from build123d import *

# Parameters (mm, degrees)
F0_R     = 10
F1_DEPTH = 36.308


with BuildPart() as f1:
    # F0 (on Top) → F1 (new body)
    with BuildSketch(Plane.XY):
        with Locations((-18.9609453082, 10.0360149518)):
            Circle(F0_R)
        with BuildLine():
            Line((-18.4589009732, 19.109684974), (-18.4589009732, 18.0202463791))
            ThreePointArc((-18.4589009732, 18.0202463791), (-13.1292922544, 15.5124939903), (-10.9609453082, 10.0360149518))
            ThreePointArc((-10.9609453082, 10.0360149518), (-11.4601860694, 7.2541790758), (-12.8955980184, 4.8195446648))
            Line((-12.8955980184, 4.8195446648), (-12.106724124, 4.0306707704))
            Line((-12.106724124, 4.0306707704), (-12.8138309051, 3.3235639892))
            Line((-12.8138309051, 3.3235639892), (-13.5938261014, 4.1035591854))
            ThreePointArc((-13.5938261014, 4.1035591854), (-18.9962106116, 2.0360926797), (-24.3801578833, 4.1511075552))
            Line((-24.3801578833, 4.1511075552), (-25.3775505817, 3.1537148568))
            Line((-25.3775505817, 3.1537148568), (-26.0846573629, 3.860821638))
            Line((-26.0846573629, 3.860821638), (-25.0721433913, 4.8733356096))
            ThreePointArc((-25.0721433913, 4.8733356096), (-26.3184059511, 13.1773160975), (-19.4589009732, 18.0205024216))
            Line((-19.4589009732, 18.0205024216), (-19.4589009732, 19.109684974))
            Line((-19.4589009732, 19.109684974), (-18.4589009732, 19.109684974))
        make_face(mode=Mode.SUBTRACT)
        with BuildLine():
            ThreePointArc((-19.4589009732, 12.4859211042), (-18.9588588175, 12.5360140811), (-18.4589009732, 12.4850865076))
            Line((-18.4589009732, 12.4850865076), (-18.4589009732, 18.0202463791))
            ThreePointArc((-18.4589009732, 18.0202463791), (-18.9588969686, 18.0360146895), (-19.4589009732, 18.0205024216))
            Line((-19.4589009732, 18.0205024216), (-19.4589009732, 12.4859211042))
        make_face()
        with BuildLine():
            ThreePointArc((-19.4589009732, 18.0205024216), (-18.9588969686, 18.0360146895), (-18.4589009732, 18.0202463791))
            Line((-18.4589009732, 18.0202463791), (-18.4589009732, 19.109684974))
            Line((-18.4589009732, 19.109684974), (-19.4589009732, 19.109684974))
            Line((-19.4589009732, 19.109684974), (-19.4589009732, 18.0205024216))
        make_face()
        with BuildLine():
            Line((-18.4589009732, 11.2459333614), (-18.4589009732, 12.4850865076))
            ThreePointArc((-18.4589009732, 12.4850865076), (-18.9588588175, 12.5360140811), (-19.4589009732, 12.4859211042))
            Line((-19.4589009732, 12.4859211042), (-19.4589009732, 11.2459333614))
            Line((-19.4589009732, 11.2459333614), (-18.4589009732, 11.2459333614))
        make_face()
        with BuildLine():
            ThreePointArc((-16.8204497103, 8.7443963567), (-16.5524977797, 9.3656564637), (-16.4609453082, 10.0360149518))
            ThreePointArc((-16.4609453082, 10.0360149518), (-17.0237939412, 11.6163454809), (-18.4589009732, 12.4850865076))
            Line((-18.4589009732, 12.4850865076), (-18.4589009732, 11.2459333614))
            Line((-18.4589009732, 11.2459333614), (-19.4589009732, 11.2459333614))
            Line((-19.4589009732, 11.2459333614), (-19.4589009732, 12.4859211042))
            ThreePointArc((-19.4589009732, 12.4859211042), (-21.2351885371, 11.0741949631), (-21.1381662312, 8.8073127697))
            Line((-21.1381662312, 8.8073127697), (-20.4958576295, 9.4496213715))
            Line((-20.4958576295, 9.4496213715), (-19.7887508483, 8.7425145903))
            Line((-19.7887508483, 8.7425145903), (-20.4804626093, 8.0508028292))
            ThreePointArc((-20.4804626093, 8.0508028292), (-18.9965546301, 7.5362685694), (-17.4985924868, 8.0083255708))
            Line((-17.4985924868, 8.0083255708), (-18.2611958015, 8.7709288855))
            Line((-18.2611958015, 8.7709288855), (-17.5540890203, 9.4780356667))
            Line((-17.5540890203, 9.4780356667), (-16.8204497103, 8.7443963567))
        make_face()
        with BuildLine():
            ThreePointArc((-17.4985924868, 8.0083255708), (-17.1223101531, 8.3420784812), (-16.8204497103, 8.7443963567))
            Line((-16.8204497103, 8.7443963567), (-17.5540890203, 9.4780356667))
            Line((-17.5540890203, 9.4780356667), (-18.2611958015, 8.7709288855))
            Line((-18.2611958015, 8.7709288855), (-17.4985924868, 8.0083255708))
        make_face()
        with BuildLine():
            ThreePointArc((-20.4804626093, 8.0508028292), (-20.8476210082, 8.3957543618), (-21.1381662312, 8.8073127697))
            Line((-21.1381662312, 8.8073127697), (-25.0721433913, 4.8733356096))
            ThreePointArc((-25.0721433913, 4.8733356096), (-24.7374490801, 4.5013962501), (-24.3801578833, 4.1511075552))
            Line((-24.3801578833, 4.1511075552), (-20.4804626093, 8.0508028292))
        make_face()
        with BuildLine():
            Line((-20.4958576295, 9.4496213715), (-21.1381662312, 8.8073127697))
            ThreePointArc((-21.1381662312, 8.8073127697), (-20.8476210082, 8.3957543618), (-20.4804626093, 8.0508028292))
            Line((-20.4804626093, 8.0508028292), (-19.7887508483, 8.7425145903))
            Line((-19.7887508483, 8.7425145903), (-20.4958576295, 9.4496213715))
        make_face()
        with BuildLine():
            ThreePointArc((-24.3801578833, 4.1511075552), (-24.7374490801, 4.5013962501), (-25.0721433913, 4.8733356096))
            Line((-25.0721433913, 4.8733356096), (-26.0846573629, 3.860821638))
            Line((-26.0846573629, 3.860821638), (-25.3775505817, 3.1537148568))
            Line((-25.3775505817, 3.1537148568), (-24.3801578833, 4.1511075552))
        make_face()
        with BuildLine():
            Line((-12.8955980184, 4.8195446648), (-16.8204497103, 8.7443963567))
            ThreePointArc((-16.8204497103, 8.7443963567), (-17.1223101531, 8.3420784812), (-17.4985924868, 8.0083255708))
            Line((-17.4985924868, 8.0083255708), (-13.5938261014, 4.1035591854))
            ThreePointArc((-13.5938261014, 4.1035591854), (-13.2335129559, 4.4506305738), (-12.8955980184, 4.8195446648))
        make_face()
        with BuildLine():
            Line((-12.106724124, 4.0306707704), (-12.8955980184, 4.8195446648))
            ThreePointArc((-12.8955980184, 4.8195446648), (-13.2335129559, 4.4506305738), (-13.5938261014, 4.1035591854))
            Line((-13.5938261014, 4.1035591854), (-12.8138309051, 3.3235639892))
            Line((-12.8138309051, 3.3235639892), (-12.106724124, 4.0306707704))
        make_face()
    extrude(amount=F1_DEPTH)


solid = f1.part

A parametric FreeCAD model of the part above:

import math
import FreeCAD as App
import Part
import Sketcher
from FreeCAD import Vector
Q = App.Units.Quantity

doc = App.newDocument("Part")
body = doc.addObject("PartDesign::Body", "Body")

sketch1 = doc.addObject("Sketcher::SketchObject", "Sketch")
body.addObject(sketch1)
sketch1.AttachmentSupport = (doc.XY_Plane, [""])
sketch1.MapMode = "FlatFace"
sketch1.addGeometry(Part.Circle(Vector(-19, 10, 0), Vector(0, 0, 1), 10), False)
sketch1.addGeometry(Part.LineSegment(Vector(-17.5, 8, 0), Vector(-13.6, 4.1, 0)), False)
sketch1.addGeometry(Part.ArcOfCircle(Part.Circle(Vector(-19, 10, 0), Vector(0, 0, 1), 8), math.radians(-133), math.radians(-48)), False)
sketch1.addGeometry(Part.LineSegment(Vector(-24.4, 4.2, 0), Vector(-20.5, 8.1, 0)), False)
sketch1.addGeometry(Part.ArcOfCircle(Part.Circle(Vector(-19, 10, 0), Vector(0, 0, 1), 2.5), math.radians(-127), math.radians(-54)), False)
sketch1.addGeometry(Part.LineSegment(Vector(-21.1, 8.8, 0), Vector(-25.1, 4.9, 0)), False)
sketch1.addGeometry(Part.ArcOfCircle(Part.Circle(Vector(-19, 10, 0), Vector(0, 0, 1), 8), math.radians(94), math.radians(220)), False)
sketch1.addGeometry(Part.LineSegment(Vector(-19.5, 18, 0), Vector(-19.5, 12.5, 0)), False)
sketch1.addGeometry(Part.ArcOfCircle(Part.Circle(Vector(-19, 10, 0), Vector(0, 0, 1), 2.5), math.radians(101), math.radians(209)), False)
sketch1.addGeometry(Part.ArcOfCircle(Part.Circle(Vector(-19, 10, 0), Vector(0, 0, 1), 8), math.radians(-41), math.radians(0)), False)
sketch1.addGeometry(Part.LineSegment(Vector(-12.9, 4.8, 0), Vector(-16.8, 8.7, 0)), False)
sketch1.addGeometry(Part.ArcOfCircle(Part.Circle(Vector(-19, 10, 0), Vector(0, 0, 1), 2.5), math.radians(-31), math.radians(0)), False)
sketch1.addGeometry(Part.ArcOfCircle(Part.Circle(Vector(-19, 10, 0), Vector(0, 0, 1), 2.5), math.radians(0), math.radians(78)), False)
sketch1.addGeometry(Part.LineSegment(Vector(-18.5, 12.5, 0), Vector(-18.5, 18, 0)), False)
sketch1.addGeometry(Part.ArcOfCircle(Part.Circle(Vector(-19, 10, 0), Vector(0, 0, 1), 8), math.radians(0), math.radians(86)), False)
sketch1.addConstraint(Sketcher.Constraint("Coincident", 1, 2, 2, 2))
sketch1.addConstraint(Sketcher.Constraint("Coincident", 2, 1, 3, 1))
sketch1.addConstraint(Sketcher.Constraint("Coincident", 3, 2, 4, 1))
sketch1.addConstraint(Sketcher.Constraint("Coincident", 4, 2, 1, 1))
sketch1.addConstraint(Sketcher.Constraint("Coincident", 5, 2, 6, 2))
sketch1.addConstraint(Sketcher.Constraint("Coincident", 6, 1, 7, 1))
sketch1.addConstraint(Sketcher.Constraint("Coincident", 7, 2, 8, 1))
sketch1.addConstraint(Sketcher.Constraint("Coincident", 8, 2, 5, 1))
sketch1.addConstraint(Sketcher.Constraint("Coincident", 9, 1, 10, 1))
sketch1.addConstraint(Sketcher.Constraint("Coincident", 10, 2, 11, 1))
sketch1.addConstraint(Sketcher.Constraint("Tangent", 11, 2, 12, 1))
sketch1.addConstraint(Sketcher.Constraint("Coincident", 12, 2, 13, 1))
sketch1.addConstraint(Sketcher.Constraint("Coincident", 13, 2, 14, 2))
sketch1.addConstraint(Sketcher.Constraint("Tangent", 14, 1, 9, 2))
sketch1.addConstraint(Sketcher.Constraint("Vertical", 7))
sketch1.addConstraint(Sketcher.Constraint("Vertical", 13))
sketch1.addConstraint(Sketcher.Constraint("Coincident", 2, 3, 0, 3))
sketch1.addConstraint(Sketcher.Constraint("Coincident", 4, 3, 0, 3))
sketch1.addConstraint(Sketcher.Constraint("Coincident", 6, 3, 0, 3))
sketch1.addConstraint(Sketcher.Constraint("Coincident", 8, 3, 0, 3))
sketch1.addConstraint(Sketcher.Constraint("Coincident", 9, 3, 0, 3))
sketch1.addConstraint(Sketcher.Constraint("Coincident", 11, 3, 0, 3))
sketch1.addConstraint(Sketcher.Constraint("Equal", 2, 6))
sketch1.addConstraint(Sketcher.Constraint("Equal", 4, 8))
sketch1.addConstraint(Sketcher.Constraint("Equal", 6, 9))
sketch1.addConstraint(Sketcher.Constraint("Equal", 8, 11))
sketch1.addConstraint(Sketcher.Constraint("Equal", 11, 12))
sketch1.addConstraint(Sketcher.Constraint("Equal", 9, 14))
sketch1.addConstraint(Sketcher.Constraint("Perpendicular", 1, 3))
sketch1.addConstraint(Sketcher.Constraint("Parallel", 3, 5))
sketch1.addConstraint(Sketcher.Constraint("Perpendicular", 5, 10))
sketch1.addConstraint(Sketcher.Constraint("Horizontal", 14, 3, 11, 2))
sketch1.addConstraint(Sketcher.Constraint("Horizontal", 11, 2, 14, 1))
sketch1.addConstraint(Sketcher.Constraint("Diameter", 0, Q("20 mm")))
sketch1.addConstraint(Sketcher.Constraint("Radius", 2, Q("8 mm")))
sketch1.addConstraint(Sketcher.Constraint("Radius", 4, Q("2.5 mm")))
sketch1.addConstraint(Sketcher.Constraint("Angle", 1, Q("-45 deg")))
sketch1.addConstraint(Sketcher.Constraint("DistanceX", 7, 2, 12, 2, Q("1 mm")))
sketch1.addConstraint(Sketcher.Constraint("Distance", 3, Q("5.515002 mm")))
sketch1.addConstraint(Sketcher.Constraint("DistanceY", 7, 2, 7, 1, Q("5.534581 mm")))
sketch1.addConstraint(Sketcher.Constraint("DistanceX", 6, 1, -1, 1, Q("19.458901 mm")))
sketch1.addConstraint(Sketcher.Constraint("DistanceX", 9, 1, -1, 1, Q("12.895598 mm")))
sketch1.addConstraint(Sketcher.Constraint("DistanceX", 5, 2, 9, 3, Q("6.111198 mm")))
sketch1.addConstraint(Sketcher.Constraint("DistanceY", -1, 1, 1, 2, Q("4.103559 mm")))
sketch1.addConstraint(Sketcher.Constraint("DistanceY", -1, 1, 7, 2, Q("12.485921 mm")))
pad1 = doc.addObject("PartDesign::Pad", "Pad")
body.addObject(pad1)
pad1.Profile = sketch1
pad1.Length = 36.308

doc.recompute()
